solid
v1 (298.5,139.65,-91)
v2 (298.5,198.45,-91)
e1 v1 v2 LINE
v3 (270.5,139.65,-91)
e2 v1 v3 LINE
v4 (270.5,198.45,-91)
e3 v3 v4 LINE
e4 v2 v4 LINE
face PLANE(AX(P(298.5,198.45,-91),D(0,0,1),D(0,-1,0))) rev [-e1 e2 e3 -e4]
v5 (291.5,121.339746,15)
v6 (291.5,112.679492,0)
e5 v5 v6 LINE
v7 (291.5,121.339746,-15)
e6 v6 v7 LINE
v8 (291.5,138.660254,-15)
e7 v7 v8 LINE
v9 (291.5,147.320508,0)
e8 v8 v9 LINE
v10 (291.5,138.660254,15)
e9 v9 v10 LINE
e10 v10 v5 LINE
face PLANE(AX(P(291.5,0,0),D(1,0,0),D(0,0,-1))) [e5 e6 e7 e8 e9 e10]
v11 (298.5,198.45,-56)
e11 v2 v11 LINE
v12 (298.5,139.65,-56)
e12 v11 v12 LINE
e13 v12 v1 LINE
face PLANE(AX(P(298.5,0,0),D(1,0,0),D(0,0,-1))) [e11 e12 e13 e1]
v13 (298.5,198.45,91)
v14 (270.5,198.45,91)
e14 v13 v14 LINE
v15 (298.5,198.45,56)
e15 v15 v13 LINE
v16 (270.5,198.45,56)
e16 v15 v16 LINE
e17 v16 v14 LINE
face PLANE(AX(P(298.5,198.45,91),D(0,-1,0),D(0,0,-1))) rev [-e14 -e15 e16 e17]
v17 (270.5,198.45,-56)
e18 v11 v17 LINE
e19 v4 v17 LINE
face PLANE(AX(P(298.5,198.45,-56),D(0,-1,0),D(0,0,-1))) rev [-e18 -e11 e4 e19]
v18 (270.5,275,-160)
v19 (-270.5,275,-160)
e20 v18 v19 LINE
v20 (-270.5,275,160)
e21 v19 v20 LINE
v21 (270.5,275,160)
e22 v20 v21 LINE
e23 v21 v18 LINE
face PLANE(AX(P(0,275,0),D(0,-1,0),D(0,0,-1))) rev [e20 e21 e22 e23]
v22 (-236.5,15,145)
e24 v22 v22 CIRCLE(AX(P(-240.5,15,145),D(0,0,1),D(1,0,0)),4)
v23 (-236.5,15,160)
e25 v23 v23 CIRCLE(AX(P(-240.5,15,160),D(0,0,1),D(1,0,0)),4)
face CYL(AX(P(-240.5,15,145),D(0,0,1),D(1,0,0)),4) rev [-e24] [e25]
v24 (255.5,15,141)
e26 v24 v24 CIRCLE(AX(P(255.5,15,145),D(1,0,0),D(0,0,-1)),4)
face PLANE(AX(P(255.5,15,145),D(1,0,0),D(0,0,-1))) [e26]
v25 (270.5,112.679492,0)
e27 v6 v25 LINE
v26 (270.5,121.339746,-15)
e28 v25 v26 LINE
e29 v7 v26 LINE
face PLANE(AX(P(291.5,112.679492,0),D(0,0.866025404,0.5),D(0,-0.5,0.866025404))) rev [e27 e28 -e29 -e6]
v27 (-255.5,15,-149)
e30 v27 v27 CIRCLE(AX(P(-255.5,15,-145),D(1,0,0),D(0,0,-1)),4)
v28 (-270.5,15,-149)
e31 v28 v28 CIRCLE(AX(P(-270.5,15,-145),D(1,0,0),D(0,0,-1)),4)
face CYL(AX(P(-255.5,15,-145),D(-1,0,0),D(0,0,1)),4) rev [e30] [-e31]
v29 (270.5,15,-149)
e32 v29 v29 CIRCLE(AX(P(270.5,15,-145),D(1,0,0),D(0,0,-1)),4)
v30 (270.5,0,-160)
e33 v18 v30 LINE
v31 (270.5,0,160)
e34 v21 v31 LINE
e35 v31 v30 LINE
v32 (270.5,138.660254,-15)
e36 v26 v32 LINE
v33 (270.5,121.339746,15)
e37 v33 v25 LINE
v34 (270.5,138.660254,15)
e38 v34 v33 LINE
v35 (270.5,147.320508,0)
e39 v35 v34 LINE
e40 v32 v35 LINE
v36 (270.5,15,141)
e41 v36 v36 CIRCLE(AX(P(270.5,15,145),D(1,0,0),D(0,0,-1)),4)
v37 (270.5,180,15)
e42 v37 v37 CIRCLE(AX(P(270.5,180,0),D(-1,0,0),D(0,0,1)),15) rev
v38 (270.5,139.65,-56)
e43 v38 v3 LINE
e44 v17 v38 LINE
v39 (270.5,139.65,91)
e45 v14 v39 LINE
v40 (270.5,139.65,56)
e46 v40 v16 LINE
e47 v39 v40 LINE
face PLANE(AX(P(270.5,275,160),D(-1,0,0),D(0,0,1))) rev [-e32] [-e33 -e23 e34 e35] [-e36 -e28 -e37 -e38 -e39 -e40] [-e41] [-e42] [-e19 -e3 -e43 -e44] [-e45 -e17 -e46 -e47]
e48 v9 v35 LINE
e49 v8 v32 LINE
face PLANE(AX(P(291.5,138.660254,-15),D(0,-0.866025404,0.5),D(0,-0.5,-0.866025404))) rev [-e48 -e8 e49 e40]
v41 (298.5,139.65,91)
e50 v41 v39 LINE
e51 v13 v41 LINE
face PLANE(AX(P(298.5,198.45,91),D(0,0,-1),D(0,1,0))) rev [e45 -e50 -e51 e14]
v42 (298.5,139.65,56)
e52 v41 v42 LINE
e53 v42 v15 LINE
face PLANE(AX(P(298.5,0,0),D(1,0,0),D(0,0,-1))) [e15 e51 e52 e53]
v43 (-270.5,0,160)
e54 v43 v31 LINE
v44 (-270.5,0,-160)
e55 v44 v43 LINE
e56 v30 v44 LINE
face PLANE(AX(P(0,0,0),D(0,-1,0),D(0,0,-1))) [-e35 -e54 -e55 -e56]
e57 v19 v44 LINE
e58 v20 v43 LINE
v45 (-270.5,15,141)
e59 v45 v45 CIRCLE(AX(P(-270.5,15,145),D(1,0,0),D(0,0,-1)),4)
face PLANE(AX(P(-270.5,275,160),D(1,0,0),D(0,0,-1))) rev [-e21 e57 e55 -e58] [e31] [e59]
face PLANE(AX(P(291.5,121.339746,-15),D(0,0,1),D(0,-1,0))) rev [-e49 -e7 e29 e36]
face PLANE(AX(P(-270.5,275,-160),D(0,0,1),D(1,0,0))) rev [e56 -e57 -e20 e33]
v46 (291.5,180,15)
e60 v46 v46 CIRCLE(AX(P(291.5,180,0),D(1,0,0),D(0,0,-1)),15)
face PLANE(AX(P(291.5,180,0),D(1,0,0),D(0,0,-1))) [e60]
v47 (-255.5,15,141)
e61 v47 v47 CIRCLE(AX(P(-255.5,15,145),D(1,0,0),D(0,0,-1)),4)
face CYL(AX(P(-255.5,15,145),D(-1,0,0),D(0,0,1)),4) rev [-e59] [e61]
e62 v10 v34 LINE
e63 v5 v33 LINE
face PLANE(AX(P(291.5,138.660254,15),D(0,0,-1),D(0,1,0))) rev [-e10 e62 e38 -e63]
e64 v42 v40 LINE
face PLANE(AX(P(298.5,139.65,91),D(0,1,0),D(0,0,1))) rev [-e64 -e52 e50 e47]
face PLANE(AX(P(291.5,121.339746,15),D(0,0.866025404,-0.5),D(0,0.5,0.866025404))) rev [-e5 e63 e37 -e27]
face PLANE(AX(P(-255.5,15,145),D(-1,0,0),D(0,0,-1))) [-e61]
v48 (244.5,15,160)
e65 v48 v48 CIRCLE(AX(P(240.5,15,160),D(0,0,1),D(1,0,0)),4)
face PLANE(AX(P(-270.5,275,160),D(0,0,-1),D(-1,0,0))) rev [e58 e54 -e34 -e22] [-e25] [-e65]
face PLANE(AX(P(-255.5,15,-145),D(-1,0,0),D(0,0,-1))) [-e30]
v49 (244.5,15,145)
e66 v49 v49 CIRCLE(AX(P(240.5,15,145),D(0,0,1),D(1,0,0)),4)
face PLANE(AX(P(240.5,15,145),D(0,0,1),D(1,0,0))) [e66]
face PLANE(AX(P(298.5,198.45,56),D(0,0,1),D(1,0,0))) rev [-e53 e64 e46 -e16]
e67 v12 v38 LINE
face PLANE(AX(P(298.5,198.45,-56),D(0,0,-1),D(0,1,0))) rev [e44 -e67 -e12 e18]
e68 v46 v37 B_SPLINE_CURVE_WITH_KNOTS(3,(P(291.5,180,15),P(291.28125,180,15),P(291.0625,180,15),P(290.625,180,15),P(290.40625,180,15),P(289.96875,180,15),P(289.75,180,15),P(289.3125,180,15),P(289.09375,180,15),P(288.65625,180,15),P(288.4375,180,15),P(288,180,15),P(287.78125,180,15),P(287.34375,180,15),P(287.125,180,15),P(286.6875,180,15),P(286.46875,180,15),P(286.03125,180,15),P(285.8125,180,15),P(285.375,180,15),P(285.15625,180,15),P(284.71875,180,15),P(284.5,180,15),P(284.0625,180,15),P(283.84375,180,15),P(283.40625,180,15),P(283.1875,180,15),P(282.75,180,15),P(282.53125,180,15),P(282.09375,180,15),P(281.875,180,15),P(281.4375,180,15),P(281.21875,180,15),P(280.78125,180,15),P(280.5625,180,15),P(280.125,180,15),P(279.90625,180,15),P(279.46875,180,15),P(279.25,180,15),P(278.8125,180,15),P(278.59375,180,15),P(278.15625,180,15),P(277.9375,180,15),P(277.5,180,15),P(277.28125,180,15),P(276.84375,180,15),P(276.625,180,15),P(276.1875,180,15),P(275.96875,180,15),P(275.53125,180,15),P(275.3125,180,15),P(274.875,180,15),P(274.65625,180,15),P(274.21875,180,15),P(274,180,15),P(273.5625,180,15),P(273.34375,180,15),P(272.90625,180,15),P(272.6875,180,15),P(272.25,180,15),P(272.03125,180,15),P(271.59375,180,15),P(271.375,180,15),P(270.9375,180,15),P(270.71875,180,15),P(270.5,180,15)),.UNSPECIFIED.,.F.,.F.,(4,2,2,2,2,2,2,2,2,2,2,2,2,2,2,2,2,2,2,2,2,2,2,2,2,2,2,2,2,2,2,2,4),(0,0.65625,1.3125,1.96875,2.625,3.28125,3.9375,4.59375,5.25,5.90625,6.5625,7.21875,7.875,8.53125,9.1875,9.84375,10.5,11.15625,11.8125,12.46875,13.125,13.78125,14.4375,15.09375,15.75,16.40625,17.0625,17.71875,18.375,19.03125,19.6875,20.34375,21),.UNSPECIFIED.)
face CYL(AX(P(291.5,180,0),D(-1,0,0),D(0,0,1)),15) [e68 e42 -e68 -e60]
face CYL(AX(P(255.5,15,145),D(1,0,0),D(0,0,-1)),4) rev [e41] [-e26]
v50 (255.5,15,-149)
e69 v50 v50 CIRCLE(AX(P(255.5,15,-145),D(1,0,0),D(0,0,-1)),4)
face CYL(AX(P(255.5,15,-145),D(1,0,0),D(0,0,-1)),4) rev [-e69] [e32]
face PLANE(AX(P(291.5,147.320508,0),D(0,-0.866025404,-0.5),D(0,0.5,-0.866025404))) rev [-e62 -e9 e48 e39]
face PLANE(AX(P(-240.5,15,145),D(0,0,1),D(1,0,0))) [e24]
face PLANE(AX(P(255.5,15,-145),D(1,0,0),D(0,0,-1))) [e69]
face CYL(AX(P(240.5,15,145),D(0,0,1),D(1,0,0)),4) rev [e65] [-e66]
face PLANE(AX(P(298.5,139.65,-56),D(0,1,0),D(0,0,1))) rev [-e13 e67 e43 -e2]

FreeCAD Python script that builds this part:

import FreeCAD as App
import Part
import Sketcher
Q = App.Units.Quantity

doc = App.newDocument("Part")
body = doc.addObject("PartDesign::Body", "Body")

# Sketch on XZ plane
sketch1 = body.newObject("Sketcher::SketchObject", "Sketch")
sketch1.AttachmentSupport = (doc.getObject("XZ_Plane"), [""])
sketch1.MapMode = "FlatFace"
sketch1.addGeometry([
    Part.LineSegment(App.Vector(-270.5, -160, 0), App.Vector(-270.5, 160, 0)),
    Part.LineSegment(App.Vector(-270.5, 160, 0), App.Vector(270.5, 160, 0)),
    Part.LineSegment(App.Vector(270.5, 160, 0), App.Vector(270.5, -160, 0)),
    Part.LineSegment(App.Vector(270.5, -160, 0), App.Vector(-270.5, -160, 0)),
], False)
sketch1.addConstraint([
    Sketcher.Constraint("Coincident", 0, 2, 1, 1),
    Sketcher.Constraint("Coincident", 1, 2, 2, 1),
    Sketcher.Constraint("Coincident", 2, 2, 3, 1),
    Sketcher.Constraint("Coincident", 3, 2, 0, 1),
    Sketcher.Constraint("Vertical", 0),
    Sketcher.Constraint("Horizontal", 1),
    Sketcher.Constraint("Vertical", 2),
    Sketcher.Constraint("Horizontal", 3),
    Sketcher.Constraint("Symmetric", 0, 2, 2, 2, -1, 1),
    Sketcher.Constraint("DistanceX", 1, 1, 1, 2, Q("541 mm")),
    Sketcher.Constraint("DistanceY", 0, 1, 0, 2, Q("320 mm")),
])
pad1 = body.newObject("PartDesign::Pad", "Pad")
pad1.Profile = sketch1
pad1.Length = 275
pad1.Reversed = True

# Sketch on YZ plane
sketch2 = body.newObject("Sketcher::SketchObject", "Sketch001")
sketch2.AttachmentSupport = (doc.getObject("YZ_Plane"), [""])
sketch2.MapMode = "FlatFace"
sketch2.AttachmentOffset = App.Placement(App.Vector(0, 0, 270.5), App.Rotation())
sketch2.addGeometry([
    Part.LineSegment(App.Vector(198.45, 91, 0), App.Vector(139.65, 91, 0)),  # 0
    Part.LineSegment(App.Vector(139.65, 91, 0), App.Vector(139.65, 56, 0)),  # 1
    Part.LineSegment(App.Vector(139.65, 56, 0), App.Vector(198.45, 56, 0)),  # 2
    Part.LineSegment(App.Vector(198.45, 56, 0), App.Vector(198.45, 91, 0)),  # 3
    Part.LineSegment(App.Vector(198.45, -56, 0), App.Vector(139.65, -56, 0)),  # 4
    Part.LineSegment(App.Vector(139.65, -56, 0), App.Vector(139.65, -91, 0)),  # 5
    Part.LineSegment(App.Vector(139.65, -91, 0), App.Vector(198.45, -91, 0)),  # 6
    Part.LineSegment(App.Vector(198.45, -91, 0), App.Vector(198.45, -56, 0)),  # 7
], False)
sketch2.addConstraint([
    Sketcher.Constraint("Coincident", 0, 2, 1, 1),
    Sketcher.Constraint("Coincident", 1, 2, 2, 1),
    Sketcher.Constraint("Coincident", 2, 2, 3, 1),
    Sketcher.Constraint("Coincident", 3, 2, 0, 1),
    Sketcher.Constraint("Coincident", 4, 2, 5, 1),
    Sketcher.Constraint("Coincident", 5, 2, 6, 1),
    Sketcher.Constraint("Coincident", 6, 2, 7, 1),
    Sketcher.Constraint("Coincident", 7, 2, 4, 1),
    Sketcher.Constraint("Horizontal", 0),
    Sketcher.Constraint("Vertical", 1),
    Sketcher.Constraint("Horizontal", 2),
    Sketcher.Constraint("Vertical", 3),
    Sketcher.Constraint("Horizontal", 4),
    Sketcher.Constraint("Vertical", 5),
    Sketcher.Constraint("Horizontal", 6),
    Sketcher.Constraint("Vertical", 7),
    Sketcher.Constraint("Symmetric", 1, 2, 4, 2, -1),
    Sketcher.Constraint("Symmetric", 3, 2, 6, 2, -1),
    Sketcher.Constraint("DistanceY", 1, 2, 1, 1, Q("35 mm")),
    Sketcher.Constraint("DistanceX", 0, 2, 0, 1, Q("58.8 mm")),
    Sketcher.Constraint("DistanceY", -1, 1, 0, 2, Q("91 mm")),
    Sketcher.Constraint("DistanceX", -1, 1, 0, 2, Q("139.65 mm")),
])
pad2 = body.newObject("PartDesign::Pad", "Pad001")
pad2.Profile = sketch2
pad2.Length = 28

# Sketch on YZ plane
sketch3 = body.newObject("Sketcher::SketchObject", "Sketch002")
sketch3.AttachmentSupport = (doc.getObject("YZ_Plane"), [""])
sketch3.MapMode = "FlatFace"
sketch3.AttachmentOffset = App.Placement(App.Vector(0, 0, 270.5), App.Rotation())
sketch3.addGeometry([
    Part.Circle(App.Vector(180, 0, 0), App.Vector(0, 0, 1), 15),  # 0
    Part.LineSegment(App.Vector(147.320508, 0, 0), App.Vector(138.660254, 15, 0)),  # 1
    Part.LineSegment(App.Vector(138.660254, 15, 0), App.Vector(121.339746, 15, 0)),  # 2
    Part.LineSegment(App.Vector(121.339746, 15, 0), App.Vector(112.679492, 0, 0)),  # 3
    Part.LineSegment(App.Vector(112.679492, 0, 0), App.Vector(121.339746, -15, 0)),  # 4
    Part.LineSegment(App.Vector(121.339746, -15, 0), App.Vector(138.660254, -15, 0)),  # 5
    Part.LineSegment(App.Vector(138.660254, -15, 0), App.Vector(147.320508, 0, 0)),  # 6
], False)
sketch3.addConstraint([
    Sketcher.Constraint("Coincident", 1, 2, 2, 1),
    Sketcher.Constraint("Coincident", 2, 2, 3, 1),
    Sketcher.Constraint("Coincident", 3, 2, 4, 1),
    Sketcher.Constraint("Coincident", 4, 2, 5, 1),
    Sketcher.Constraint("Coincident", 5, 2, 6, 1),
    Sketcher.Constraint("Coincident", 6, 2, 1, 1),
    Sketcher.Constraint("Horizontal", 2),
    Sketcher.Constraint("Horizontal", 5),
    Sketcher.Constraint("Symmetric", 2, 2, 4, 2, -1),
    Sketcher.Constraint("PointOnObject", 0, 3, -1),
    Sketcher.Constraint("PointOnObject", 3, 2, -1),
    Sketcher.Constraint("PointOnObject", 6, 2, -1),
    Sketcher.Constraint("Parallel", 1, 4),
    Sketcher.Constraint("Parallel", 3, 6),
    Sketcher.Constraint("Diameter", 0, Q("30 mm")),
    Sketcher.Constraint("Angle", 1, Q("120 deg")),
    Sketcher.Constraint("DistanceX", -1, 1, 0, 3, Q("180 mm")),
    Sketcher.Constraint("DistanceY", -1, 1, 1, 2, Q("15 mm")),
    Sketcher.Constraint("DistanceX", 2, 2, 2, 1, Q("17.320508 mm")),
    Sketcher.Constraint("DistanceX", -1, 1, 3, 2, Q("112.679492 mm")),
])
pad3 = body.newObject("PartDesign::Pad", "Pad002")
pad3.Profile = sketch3
pad3.Length = 21

# Sketch on YZ plane
sketch4 = body.newObject("Sketcher::SketchObject", "Sketch003")
sketch4.AttachmentSupport = (doc.getObject("YZ_Plane"), [""])
sketch4.MapMode = "FlatFace"
sketch4.AttachmentOffset = App.Placement(App.Vector(0, 0, 270.5), App.Rotation())
sketch4.addGeometry([
    Part.Circle(App.Vector(15, 145, 0), App.Vector(0, 0, 1), 4),
    Part.Circle(App.Vector(15, -145, 0), App.Vector(0, 0, 1), 4),
], False)
sketch4.addConstraint([
    Sketcher.Constraint("Equal", 0, 1),
    Sketcher.Constraint("Symmetric", 0, 3, 1, 3, -1),
    Sketcher.Constraint("Diameter", 0, Q("8 mm")),
    Sketcher.Constraint("DistanceX", -1, 1, 0, 3, Q("15 mm")),
    Sketcher.Constraint("DistanceY", -1, 1, 0, 3, Q("145 mm")),
])
pocket1 = body.newObject("PartDesign::Pocket", "Pocket")
pocket1.Profile = sketch4
pocket1.Length = 15
doc.recompute()

mirrored = body.newObject("PartDesign::Mirrored", "Mirrored")
mirrored.Originals = [pocket1]
mirrored.MirrorPlane = (doc.getObject("YZ_Plane"), [""])
body.Tip = mirrored

# Sketch on XY plane
sketch5 = body.newObject("Sketcher::SketchObject", "Sketch004")
sketch5.AttachmentSupport = (doc.getObject("XY_Plane"), [""])
sketch5.MapMode = "FlatFace"
sketch5.AttachmentOffset = App.Placement(App.Vector(0, 0, 160), App.Rotation())
sketch5.addGeometry([
    Part.Circle(App.Vector(-240.5, 15, 0), App.Vector(0, 0, 1), 4),
    Part.Circle(App.Vector(240.5, 15, 0), App.Vector(0, 0, 1), 4),
], False)
sketch5.addConstraint([
    Sketcher.Constraint("Equal", 0, 1),
    Sketcher.Constraint("Symmetric", 0, 3, 1, 3, -2),
    Sketcher.Constraint("Diameter", 0, Q("8 mm")),
    Sketcher.Constraint("DistanceY", -1, 1, 0, 3, Q("15 mm")),
    Sketcher.Constraint("DistanceX", 0, 3, 1, 3, Q("481 mm")),
])
pocket2 = body.newObject("PartDesign::Pocket", "Pocket001")
pocket2.Profile = sketch5
pocket2.Length = 15

doc.recompute()
